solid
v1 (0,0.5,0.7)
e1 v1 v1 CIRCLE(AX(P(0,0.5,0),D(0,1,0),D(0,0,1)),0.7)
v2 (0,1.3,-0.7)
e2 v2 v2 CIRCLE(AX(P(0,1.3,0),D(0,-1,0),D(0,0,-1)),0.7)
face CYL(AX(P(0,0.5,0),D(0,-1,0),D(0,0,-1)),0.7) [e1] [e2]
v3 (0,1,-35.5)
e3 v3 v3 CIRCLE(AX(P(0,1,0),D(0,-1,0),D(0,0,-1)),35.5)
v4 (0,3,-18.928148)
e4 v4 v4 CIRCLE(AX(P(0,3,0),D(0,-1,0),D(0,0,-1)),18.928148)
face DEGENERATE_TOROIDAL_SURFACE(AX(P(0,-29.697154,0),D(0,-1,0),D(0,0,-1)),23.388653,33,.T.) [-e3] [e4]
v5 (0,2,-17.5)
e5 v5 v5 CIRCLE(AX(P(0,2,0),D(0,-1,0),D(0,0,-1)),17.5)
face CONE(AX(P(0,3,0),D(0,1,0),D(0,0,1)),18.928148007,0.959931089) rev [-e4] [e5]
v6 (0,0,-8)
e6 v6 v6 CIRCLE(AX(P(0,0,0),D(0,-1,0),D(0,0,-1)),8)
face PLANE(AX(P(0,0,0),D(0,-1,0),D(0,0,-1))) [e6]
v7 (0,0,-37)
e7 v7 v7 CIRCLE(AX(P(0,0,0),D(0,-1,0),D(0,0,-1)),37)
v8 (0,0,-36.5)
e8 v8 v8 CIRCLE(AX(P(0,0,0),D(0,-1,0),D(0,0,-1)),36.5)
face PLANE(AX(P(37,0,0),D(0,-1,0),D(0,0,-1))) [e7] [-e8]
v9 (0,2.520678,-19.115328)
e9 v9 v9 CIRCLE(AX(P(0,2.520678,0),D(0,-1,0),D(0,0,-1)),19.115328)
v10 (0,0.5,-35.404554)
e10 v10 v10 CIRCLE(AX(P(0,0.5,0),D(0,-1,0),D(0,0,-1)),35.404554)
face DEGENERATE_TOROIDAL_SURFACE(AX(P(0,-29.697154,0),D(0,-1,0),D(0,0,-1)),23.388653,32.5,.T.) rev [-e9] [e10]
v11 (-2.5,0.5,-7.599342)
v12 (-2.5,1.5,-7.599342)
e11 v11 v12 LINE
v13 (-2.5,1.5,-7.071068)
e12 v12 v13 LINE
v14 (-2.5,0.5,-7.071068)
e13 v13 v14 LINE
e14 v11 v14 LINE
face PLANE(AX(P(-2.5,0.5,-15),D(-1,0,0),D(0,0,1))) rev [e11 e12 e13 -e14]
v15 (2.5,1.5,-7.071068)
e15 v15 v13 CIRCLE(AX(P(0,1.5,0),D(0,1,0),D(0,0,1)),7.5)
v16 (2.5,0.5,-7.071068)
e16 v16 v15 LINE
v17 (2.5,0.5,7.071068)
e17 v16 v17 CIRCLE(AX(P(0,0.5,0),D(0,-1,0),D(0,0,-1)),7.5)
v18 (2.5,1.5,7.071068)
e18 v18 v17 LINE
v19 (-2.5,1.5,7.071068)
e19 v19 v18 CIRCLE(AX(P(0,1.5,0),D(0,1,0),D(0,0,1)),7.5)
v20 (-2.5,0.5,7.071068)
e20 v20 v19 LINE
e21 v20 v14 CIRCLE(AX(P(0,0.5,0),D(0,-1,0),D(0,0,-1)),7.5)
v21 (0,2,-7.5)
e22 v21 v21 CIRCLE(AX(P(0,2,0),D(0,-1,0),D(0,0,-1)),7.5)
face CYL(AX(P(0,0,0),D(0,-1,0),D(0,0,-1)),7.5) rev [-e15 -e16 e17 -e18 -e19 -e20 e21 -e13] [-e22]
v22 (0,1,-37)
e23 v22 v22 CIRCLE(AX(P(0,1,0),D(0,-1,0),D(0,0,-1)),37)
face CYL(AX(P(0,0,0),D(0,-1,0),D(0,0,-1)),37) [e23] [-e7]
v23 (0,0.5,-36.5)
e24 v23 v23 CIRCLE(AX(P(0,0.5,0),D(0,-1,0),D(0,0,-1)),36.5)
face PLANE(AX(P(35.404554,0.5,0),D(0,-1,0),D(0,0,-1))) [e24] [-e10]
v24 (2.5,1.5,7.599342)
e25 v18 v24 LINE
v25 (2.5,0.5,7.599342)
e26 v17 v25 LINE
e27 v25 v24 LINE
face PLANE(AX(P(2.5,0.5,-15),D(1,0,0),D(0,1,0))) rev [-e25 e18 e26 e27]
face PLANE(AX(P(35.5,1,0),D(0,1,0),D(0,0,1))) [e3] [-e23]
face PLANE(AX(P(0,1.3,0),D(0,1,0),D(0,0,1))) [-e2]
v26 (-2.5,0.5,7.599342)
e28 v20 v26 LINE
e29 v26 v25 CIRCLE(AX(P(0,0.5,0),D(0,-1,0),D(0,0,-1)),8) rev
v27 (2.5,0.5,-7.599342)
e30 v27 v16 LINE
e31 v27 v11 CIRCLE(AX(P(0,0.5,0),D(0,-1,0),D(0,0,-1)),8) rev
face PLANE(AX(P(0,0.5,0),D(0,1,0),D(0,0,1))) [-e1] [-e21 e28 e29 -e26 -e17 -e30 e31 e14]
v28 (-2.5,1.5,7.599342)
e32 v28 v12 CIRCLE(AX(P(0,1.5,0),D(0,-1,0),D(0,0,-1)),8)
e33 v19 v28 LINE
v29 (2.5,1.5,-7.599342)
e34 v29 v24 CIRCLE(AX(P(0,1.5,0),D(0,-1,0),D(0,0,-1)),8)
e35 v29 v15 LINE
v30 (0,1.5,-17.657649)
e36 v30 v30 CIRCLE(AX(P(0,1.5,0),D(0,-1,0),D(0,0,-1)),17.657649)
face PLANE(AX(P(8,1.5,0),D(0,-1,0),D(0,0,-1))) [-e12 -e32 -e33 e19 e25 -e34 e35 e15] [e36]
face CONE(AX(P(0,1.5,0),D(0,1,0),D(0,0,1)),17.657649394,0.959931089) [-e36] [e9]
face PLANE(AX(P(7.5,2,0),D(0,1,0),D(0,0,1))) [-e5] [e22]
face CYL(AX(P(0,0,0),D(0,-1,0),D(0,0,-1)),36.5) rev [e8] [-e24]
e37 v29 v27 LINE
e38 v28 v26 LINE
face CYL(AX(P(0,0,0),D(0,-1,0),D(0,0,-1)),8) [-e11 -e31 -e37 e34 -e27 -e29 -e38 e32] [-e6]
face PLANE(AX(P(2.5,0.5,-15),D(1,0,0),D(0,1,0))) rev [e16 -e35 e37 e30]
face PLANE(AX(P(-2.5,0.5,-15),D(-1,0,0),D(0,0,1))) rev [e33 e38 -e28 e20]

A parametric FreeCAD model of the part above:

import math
import FreeCAD as App
import Part
import Sketcher

V = App.Vector
Q = App.Units.Quantity

doc = App.newDocument("Part")
body = doc.addObject("PartDesign::Body", "Body")

# Sketch on XY plane
sketch1 = body.newObject("Sketcher::SketchObject", "Sketch")
sketch1.AttachmentSupport = (doc.getObject("XY_Plane"), [""])
sketch1.MapMode = "FlatFace"
sketch1.addGeometry([
    Part.LineSegment(V(7.5, 0.5, 0), V(0, 0.5, 0)),  # 0
    Part.LineSegment(V(0, 0.5, 0), V(0, 0, 0)),  # 1
    Part.LineSegment(V(0, 0, 0), V(8, 0, 0)),  # 2
    Part.LineSegment(V(8, 0, 0), V(8, 1.5, 0)),  # 3
    Part.LineSegment(V(8, 1.5, 0), V(17.657649, 1.5, 0)),  # 4
    Part.LineSegment(V(17.657649, 1.5, 0), V(19.115328, 2.520678, 0)),  # 5
    Part.ArcOfCircle(Part.Circle(V(23.388653, -29.697154, 0), V(0, 0, 1), 32.5), math.radians(68.301648), math.radians(97.555524)),  # 6
    Part.LineSegment(V(35.404554, 0.5, 0), V(36.5, 0.5, 0)),  # 7
    Part.LineSegment(V(36.5, 0.5, 0), V(36.5, 0, 0)),  # 8
    Part.LineSegment(V(36.5, 0, 0), V(37, 0, 0)),  # 9
    Part.LineSegment(V(37, 0, 0), V(37, 1, 0)),  # 10
    Part.LineSegment(V(37, 1, 0), V(35.5, 1, 0)),  # 11
    Part.ArcOfCircle(Part.Circle(V(23.388653, -29.697154, 0), V(0, 0, 1), 33), math.radians(68.468635), math.radians(97.768267)),  # 12
    Part.LineSegment(V(18.928148, 3, 0), V(17.5, 2, 0)),  # 13
    Part.LineSegment(V(17.5, 2, 0), V(7.5, 2, 0)),  # 14
    Part.LineSegment(V(7.5, 2, 0), V(7.5, 0.5, 0)),  # 15
], False)
sketch1.addConstraint([
    Sketcher.Constraint("Coincident", 0, 2, 1, 1),
    Sketcher.Constraint("Coincident", 1, 2, 2, 1),
    Sketcher.Constraint("Coincident", 2, 2, 3, 1),
    Sketcher.Constraint("Coincident", 3, 2, 4, 1),
    Sketcher.Constraint("Coincident", 4, 2, 5, 1),
    Sketcher.Constraint("Coincident", 5, 2, 6, 2),
    Sketcher.Constraint("Coincident", 6, 1, 7, 1),
    Sketcher.Constraint("Coincident", 7, 2, 8, 1),
    Sketcher.Constraint("Coincident", 8, 2, 9, 1),
    Sketcher.Constraint("Coincident", 9, 2, 10, 1),
    Sketcher.Constraint("Coincident", 10, 2, 11, 1),
    Sketcher.Constraint("Coincident", 11, 2, 12, 1),
    Sketcher.Constraint("Coincident", 12, 2, 13, 1),
    Sketcher.Constraint("Coincident", 13, 2, 14, 1),
    Sketcher.Constraint("Coincident", 14, 2, 15, 1),
    Sketcher.Constraint("Coincident", 15, 2, 0, 1),
    Sketcher.Constraint("Horizontal", 0),
    Sketcher.Constraint("Vertical", 1),
    Sketcher.Constraint("Horizontal", 2),
    Sketcher.Constraint("Vertical", 3),
    Sketcher.Constraint("Horizontal", 4),
    Sketcher.Constraint("Horizontal", 7),
    Sketcher.Constraint("Vertical", 8),
    Sketcher.Constraint("Horizontal", 9),
    Sketcher.Constraint("Vertical", 10),
    Sketcher.Constraint("Horizontal", 11),
    Sketcher.Constraint("Horizontal", 14),
    Sketcher.Constraint("Vertical", 15),
    Sketcher.Constraint("Coincident", 1, 2, -1, 1),
    Sketcher.Constraint("Coincident", 12, 3, 6, 3),
    Sketcher.Constraint("PointOnObject", 8, 2, -1),
    Sketcher.Constraint("Parallel", 5, 13),
    Sketcher.Constraint("Horizontal", 0, 2, 6, 1),
    Sketcher.Constraint("Equal", 9, 1),
    Sketcher.Constraint("Equal", 11, 3),
    Sketcher.Constraint("Equal", 3, 15),
    Sketcher.Constraint("Radius", 12, Q("33 mm")),
    Sketcher.Constraint("Radius", 6, Q("32.5 mm")),
    Sketcher.Constraint("DistanceX", 2, 1, 2, 2, Q("8 mm")),
    Sketcher.Constraint("DistanceX", 14, 2, 14, 1, Q("10 mm")),
    Sketcher.Constraint("DistanceY", 10, 1, 10, 2, Q("1 mm")),
    Sketcher.Constraint("Angle", 5, Q("35 deg")),
    Sketcher.Constraint("DistanceX", 0, 2, 0, 1, Q("7.5 mm")),
    Sketcher.Constraint("DistanceX", 9, 1, 9, 2, Q("0.5 mm")),
    Sketcher.Constraint("DistanceX", 11, 2, 11, 1, Q("1.5 mm")),
    Sketcher.Constraint("DistanceX", -1, 1, 9, 2, Q("37 mm")),
    Sketcher.Constraint("DistanceY", -1, 1, 12, 2, Q("3 mm")),
    Sketcher.Constraint("DistanceX", 4, 1, 4, 2, Q("9.657649 mm")),
])
revolution = body.newObject("PartDesign::Revolution", "Revolution")
revolution.Profile = sketch1
revolution.ReferenceAxis = (sketch1, ["V_Axis"])
revolution.Angle = 360

# Sketch on XY plane
sketch2 = body.newObject("Sketcher::SketchObject", "Sketch001")
sketch2.AttachmentSupport = (doc.getObject("XY_Plane"), [""])
sketch2.MapMode = "FlatFace"
sketch2.addGeometry([
    Part.LineSegment(V(-2.5, 1.5, 0), V(-2.5, 0.5, 0)),
    Part.LineSegment(V(-2.5, 0.5, 0), V(2.5, 0.5, 0)),
    Part.LineSegment(V(2.5, 0.5, 0), V(2.5, 1.5, 0)),
    Part.LineSegment(V(2.5, 1.5, 0), V(-2.5, 1.5, 0)),
], False)
sketch2.addConstraint([
    Sketcher.Constraint("Coincident", 0, 2, 1, 1),
    Sketcher.Constraint("Coincident", 1, 2, 2, 1),
    Sketcher.Constraint("Coincident", 2, 2, 3, 1),
    Sketcher.Constraint("Coincident", 3, 2, 0, 1),
    Sketcher.Constraint("Vertical", 0),
    Sketcher.Constraint("Horizontal", 1),
    Sketcher.Constraint("Vertical", 2),
    Sketcher.Constraint("Horizontal", 3),
    Sketcher.Constraint("DistanceX", 1, 1, 1, 2, Q("5 mm")),
    Sketcher.Constraint("DistanceY", 0, 2, 0, 1, Q("1 mm")),
    Sketcher.Constraint("DistanceX", 0, 2, -1, 1, Q("2.5 mm")),
    Sketcher.Constraint("DistanceY", -1, 1, 0, 2, Q("0.5 mm")),
])
pocket1 = body.newObject("PartDesign::Pocket", "Pocket")
pocket1.Profile = sketch2
pocket1.Length = 30
pocket1.Midplane = True

# Sketch on XY plane
sketch3 = body.newObject("Sketcher::SketchObject", "Sketch002")
sketch3.AttachmentSupport = (doc.getObject("XY_Plane"), [""])
sketch3.MapMode = "FlatFace"
sketch3.addGeometry([
    Part.LineSegment(V(0, 1.3, 0), V(0, 0.5, 0)),
    Part.LineSegment(V(0, 0.5, 0), V(0.7, 0.5, 0)),
    Part.LineSegment(V(0.7, 0.5, 0), V(0.7, 1.3, 0)),
    Part.LineSegment(V(0.7, 1.3, 0), V(0, 1.3, 0)),
], False)
sketch3.addConstraint([
    Sketcher.Constraint("Coincident", 0, 2, 1, 1),
    Sketcher.Constraint("Coincident", 1, 2, 2, 1),
    Sketcher.Constraint("Coincident", 2, 2, 3, 1),
    Sketcher.Constraint("Coincident", 3, 2, 0, 1),
    Sketcher.Constraint("Vertical", 0),
    Sketcher.Constraint("Horizontal", 1),
    Sketcher.Constraint("Vertical", 2),
    Sketcher.Constraint("Horizontal", 3),
    Sketcher.Constraint("PointOnObject", 0, 2, -2),
    Sketcher.Constraint("DistanceX", 1, 1, 1, 2, Q("0.7 mm")),
    Sketcher.Constraint("DistanceY", 0, 2, 0, 1, Q("0.8 mm")),
    Sketcher.Constraint("DistanceY", -1, 1, 0, 2, Q("0.5 mm")),
])
revolution2 = body.newObject("PartDesign::Revolution", "Revolution001")
revolution2.Profile = sketch3
revolution2.ReferenceAxis = (sketch3, ["V_Axis"])
revolution2.Angle = 360

doc.recompute()
